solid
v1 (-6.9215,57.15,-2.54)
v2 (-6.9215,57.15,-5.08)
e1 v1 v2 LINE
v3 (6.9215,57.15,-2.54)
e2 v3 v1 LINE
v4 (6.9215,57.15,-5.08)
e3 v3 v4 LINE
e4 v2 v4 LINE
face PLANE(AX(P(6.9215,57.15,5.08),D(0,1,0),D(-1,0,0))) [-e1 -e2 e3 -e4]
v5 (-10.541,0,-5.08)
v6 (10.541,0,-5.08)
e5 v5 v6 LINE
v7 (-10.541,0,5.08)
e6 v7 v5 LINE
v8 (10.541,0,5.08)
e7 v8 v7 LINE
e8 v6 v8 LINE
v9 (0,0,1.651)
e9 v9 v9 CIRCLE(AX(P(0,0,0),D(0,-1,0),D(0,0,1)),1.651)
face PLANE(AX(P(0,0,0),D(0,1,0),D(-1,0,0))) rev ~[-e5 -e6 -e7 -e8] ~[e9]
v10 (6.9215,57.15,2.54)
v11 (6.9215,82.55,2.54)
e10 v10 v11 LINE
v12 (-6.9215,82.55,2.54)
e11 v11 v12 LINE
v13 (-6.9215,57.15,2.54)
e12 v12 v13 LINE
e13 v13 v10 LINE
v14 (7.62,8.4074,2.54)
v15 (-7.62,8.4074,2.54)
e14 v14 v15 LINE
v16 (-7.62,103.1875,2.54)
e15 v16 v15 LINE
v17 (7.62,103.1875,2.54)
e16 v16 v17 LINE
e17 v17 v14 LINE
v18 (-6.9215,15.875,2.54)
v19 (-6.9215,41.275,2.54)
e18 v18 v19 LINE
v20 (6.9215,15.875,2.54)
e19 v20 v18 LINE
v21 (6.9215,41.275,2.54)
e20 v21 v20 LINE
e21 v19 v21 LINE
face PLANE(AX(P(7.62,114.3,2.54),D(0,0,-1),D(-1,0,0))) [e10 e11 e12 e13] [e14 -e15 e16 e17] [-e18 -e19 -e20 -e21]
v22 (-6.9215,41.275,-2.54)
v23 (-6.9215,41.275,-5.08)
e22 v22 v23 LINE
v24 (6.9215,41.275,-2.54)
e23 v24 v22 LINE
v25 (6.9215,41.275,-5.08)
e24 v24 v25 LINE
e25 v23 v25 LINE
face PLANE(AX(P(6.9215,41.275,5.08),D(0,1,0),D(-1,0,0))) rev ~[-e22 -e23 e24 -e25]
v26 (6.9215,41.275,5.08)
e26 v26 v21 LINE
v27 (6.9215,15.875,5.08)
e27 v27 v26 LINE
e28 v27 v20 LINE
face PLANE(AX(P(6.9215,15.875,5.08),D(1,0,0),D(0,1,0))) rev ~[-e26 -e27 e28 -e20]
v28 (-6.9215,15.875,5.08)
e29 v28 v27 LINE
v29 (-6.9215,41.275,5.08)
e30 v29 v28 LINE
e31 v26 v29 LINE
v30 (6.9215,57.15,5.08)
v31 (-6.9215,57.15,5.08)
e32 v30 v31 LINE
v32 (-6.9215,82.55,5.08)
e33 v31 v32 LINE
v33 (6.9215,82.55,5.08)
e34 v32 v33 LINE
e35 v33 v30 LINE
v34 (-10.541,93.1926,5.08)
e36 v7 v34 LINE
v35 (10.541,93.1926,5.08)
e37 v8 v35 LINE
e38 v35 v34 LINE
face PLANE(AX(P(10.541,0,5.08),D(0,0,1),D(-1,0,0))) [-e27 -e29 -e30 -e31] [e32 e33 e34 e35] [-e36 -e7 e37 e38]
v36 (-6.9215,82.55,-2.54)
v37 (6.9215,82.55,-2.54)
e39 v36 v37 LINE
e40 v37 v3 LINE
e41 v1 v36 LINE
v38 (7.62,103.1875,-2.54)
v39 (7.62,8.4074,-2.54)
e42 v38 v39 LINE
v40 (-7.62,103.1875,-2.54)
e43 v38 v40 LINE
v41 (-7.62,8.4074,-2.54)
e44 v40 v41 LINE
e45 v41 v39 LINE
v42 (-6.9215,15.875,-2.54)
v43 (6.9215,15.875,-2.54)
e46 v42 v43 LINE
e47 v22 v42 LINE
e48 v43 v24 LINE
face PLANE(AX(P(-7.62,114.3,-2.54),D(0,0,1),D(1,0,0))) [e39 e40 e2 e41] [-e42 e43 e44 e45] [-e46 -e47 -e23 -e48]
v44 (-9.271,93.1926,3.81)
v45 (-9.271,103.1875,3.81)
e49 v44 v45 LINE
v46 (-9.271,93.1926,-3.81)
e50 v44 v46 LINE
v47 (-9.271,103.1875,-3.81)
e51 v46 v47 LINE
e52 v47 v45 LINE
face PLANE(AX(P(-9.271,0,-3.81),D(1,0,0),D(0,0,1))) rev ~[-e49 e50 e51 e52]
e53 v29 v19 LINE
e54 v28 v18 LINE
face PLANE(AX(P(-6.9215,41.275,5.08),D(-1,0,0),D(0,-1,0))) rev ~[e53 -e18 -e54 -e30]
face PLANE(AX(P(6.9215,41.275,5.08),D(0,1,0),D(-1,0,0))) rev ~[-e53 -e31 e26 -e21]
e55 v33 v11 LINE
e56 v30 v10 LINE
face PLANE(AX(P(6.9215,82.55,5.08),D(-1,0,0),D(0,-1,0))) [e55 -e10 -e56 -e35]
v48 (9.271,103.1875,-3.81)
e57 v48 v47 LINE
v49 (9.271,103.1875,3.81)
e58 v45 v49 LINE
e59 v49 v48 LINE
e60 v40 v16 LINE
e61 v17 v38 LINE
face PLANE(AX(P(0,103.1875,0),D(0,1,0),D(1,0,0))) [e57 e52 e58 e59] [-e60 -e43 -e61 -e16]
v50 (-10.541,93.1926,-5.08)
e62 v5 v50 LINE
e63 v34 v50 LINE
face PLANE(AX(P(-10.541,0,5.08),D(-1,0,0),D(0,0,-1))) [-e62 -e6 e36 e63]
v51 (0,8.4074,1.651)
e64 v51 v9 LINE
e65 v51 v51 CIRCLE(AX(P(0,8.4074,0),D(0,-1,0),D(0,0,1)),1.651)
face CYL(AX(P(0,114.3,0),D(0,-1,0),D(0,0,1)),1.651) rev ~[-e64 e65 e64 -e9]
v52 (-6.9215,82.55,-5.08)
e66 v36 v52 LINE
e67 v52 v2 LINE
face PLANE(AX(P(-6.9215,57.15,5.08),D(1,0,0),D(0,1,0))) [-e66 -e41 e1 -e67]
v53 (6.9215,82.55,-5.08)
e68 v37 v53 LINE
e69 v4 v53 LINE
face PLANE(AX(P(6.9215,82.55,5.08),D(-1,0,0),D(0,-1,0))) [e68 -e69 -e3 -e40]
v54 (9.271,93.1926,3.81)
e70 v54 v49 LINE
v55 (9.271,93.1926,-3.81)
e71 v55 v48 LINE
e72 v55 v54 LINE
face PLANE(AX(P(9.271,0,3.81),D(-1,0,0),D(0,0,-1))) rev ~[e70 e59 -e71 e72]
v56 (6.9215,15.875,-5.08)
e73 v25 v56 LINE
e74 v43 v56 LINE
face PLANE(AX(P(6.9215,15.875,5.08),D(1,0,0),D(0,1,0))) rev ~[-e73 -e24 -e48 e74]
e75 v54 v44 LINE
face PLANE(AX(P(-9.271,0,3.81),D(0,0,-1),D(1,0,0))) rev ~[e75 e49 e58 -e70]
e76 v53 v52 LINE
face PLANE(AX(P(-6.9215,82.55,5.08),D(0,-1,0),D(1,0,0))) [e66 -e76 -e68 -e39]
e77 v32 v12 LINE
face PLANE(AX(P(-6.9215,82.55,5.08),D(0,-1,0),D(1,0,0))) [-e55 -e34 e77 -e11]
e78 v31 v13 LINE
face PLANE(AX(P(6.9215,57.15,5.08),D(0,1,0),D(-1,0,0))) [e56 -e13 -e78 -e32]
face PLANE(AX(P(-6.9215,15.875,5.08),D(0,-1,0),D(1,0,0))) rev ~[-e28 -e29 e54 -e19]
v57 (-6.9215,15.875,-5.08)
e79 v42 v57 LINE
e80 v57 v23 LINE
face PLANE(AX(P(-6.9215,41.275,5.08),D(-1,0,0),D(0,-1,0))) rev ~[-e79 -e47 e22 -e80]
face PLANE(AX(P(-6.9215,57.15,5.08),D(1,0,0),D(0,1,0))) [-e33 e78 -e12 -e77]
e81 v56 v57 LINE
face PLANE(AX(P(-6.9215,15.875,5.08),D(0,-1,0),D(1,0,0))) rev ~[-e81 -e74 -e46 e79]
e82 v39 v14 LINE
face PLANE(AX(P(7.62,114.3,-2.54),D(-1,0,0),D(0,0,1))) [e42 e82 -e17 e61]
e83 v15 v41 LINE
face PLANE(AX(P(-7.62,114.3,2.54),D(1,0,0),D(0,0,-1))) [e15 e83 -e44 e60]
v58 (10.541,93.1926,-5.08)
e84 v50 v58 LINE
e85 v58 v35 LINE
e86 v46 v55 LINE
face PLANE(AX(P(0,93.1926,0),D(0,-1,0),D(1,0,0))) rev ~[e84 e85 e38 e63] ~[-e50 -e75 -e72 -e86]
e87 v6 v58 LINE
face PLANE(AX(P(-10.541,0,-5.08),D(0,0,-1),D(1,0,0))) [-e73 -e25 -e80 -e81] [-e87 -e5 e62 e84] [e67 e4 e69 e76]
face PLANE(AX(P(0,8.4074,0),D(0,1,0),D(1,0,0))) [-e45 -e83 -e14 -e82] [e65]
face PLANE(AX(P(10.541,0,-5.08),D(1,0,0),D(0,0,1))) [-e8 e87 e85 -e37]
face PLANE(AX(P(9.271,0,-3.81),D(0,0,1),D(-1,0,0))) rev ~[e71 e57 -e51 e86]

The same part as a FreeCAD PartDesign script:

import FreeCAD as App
import Part
import Sketcher
Q = App.Units.Quantity

doc = App.newDocument("Part")
body = doc.addObject("PartDesign::Body", "Body")

# Sketch on XZ plane
sketch1 = body.newObject("Sketcher::SketchObject", "Sketch")
sketch1.AttachmentSupport = (doc.getObject("XZ_Plane"), [""])
sketch1.MapMode = "FlatFace"
sketch1.addGeometry([
    Part.LineSegment(App.Vector(-9.271, -3.81, 0), App.Vector(-9.271, 3.81, 0)),
    Part.LineSegment(App.Vector(-9.271, 3.81, 0), App.Vector(9.271, 3.81, 0)),
    Part.LineSegment(App.Vector(9.271, 3.81, 0), App.Vector(9.271, -3.81, 0)),
    Part.LineSegment(App.Vector(9.271, -3.81, 0), App.Vector(-9.271, -3.81, 0)),
], False)
sketch1.addConstraint([
    Sketcher.Constraint("Coincident", 0, 2, 1, 1),
    Sketcher.Constraint("Coincident", 1, 2, 2, 1),
    Sketcher.Constraint("Coincident", 2, 2, 3, 1),
    Sketcher.Constraint("Coincident", 3, 2, 0, 1),
    Sketcher.Constraint("Vertical", 0),
    Sketcher.Constraint("Horizontal", 1),
    Sketcher.Constraint("Vertical", 2),
    Sketcher.Constraint("Horizontal", 3),
    Sketcher.Constraint("Symmetric", 0, 2, 2, 2, -1, 1),
    Sketcher.Constraint("DistanceY", 0, 1, 0, 2, Q("0.3 in")),
    Sketcher.Constraint("DistanceX", 1, 1, 1, 2, Q("0.73 in")),
])
pad1 = body.newObject("PartDesign::Pad", "Pad")
pad1.Profile = sketch1
pad1.Length = Q("4.5 in")
pad1.Reversed = True

# Sketch on XZ plane
sketch2 = body.newObject("Sketcher::SketchObject", "Sketch001")
sketch2.AttachmentSupport = (doc.getObject("XZ_Plane"), [""])
sketch2.MapMode = "FlatFace"
sketch2.addGeometry([
    Part.LineSegment(App.Vector(-10.541, 5.08, 0), App.Vector(-10.541, -5.08, 0)),
    Part.LineSegment(App.Vector(-10.541, -5.08, 0), App.Vector(10.541, -5.08, 0)),
    Part.LineSegment(App.Vector(10.541, -5.08, 0), App.Vector(10.541, 5.08, 0)),
    Part.LineSegment(App.Vector(10.541, 5.08, 0), App.Vector(-10.541, 5.08, 0)),
], False)
sketch2.addConstraint([
    Sketcher.Constraint("Coincident", 0, 2, 1, 1),
    Sketcher.Constraint("Coincident", 1, 2, 2, 1),
    Sketcher.Constraint("Coincident", 2, 2, 3, 1),
    Sketcher.Constraint("Coincident", 3, 2, 0, 1),
    Sketcher.Constraint("Vertical", 0),
    Sketcher.Constraint("Horizontal", 1),
    Sketcher.Constraint("Vertical", 2),
    Sketcher.Constraint("Horizontal", 3),
    Sketcher.Constraint("Symmetric", 0, 2, 2, 2, -1, 1),
    Sketcher.Constraint("DistanceY", 0, 2, 0, 1, Q("0.4 in")),
    Sketcher.Constraint("DistanceX", 1, 1, 1, 2, Q("0.83 in")),
])
pad2 = body.newObject("PartDesign::Pad", "Pad001")
pad2.Profile = sketch2
pad2.Length = Q("3.669 in")
pad2.Reversed = True

# Sketch on XZ plane
sketch3 = body.newObject("Sketcher::SketchObject", "Sketch002")
sketch3.AttachmentSupport = (doc.getObject("XZ_Plane"), [""])
sketch3.MapMode = "FlatFace"
sketch3.AttachmentOffset = App.Placement(App.Vector(0, 0, -4.5 * 25.4), App.Rotation())
sketch3.addGeometry(Part.Circle(App.Vector(0, 0, 0), App.Vector(0, 0, 1), 1.651), False)
sketch3.addConstraint([
    Sketcher.Constraint("Coincident", 0, 3, -1, 1),
    Sketcher.Constraint("Diameter", 0, Q("0.13 in")),
])
doc.recompute()
hole = body.newObject("PartDesign::Hole", "Hole")
hole.Profile = sketch3
hole.ThreadType = "None"
hole.Diameter = Q("0.13 in")
hole.DepthType = "ThroughAll"
hole.Reversed = True

# Sketch on XZ plane
sketch4 = body.newObject("Sketcher::SketchObject", "Sketch003")
sketch4.AttachmentSupport = (doc.getObject("XZ_Plane"), [""])
sketch4.MapMode = "FlatFace"
sketch4.AttachmentOffset = App.Placement(App.Vector(0, 0, -4.5 * 25.4), App.Rotation())
sketch4.addGeometry([
    Part.LineSegment(App.Vector(-7.62, 2.54, 0), App.Vector(7.62, 2.54, 0)),
    Part.LineSegment(App.Vector(7.62, 2.54, 0), App.Vector(7.62, -2.54, 0)),
    Part.LineSegment(App.Vector(7.62, -2.54, 0), App.Vector(-7.62, -2.54, 0)),
    Part.LineSegment(App.Vector(-7.62, -2.54, 0), App.Vector(-7.62, 2.54, 0)),
], False)
sketch4.addConstraint([
    Sketcher.Constraint("Coincident", 0, 2, 1, 1),
    Sketcher.Constraint("Coincident", 1, 2, 2, 1),
    Sketcher.Constraint("Coincident", 2, 2, 3, 1),
    Sketcher.Constraint("Coincident", 3, 2, 0, 1),
    Sketcher.Constraint("Horizontal", 0),
    Sketcher.Constraint("Vertical", 1),
    Sketcher.Constraint("Horizontal", 2),
    Sketcher.Constraint("Vertical", 3),
    Sketcher.Constraint("Symmetric", 0, 2, 2, 2, -1, 1),
    Sketcher.Constraint("DistanceX", 0, 1, 0, 2, Q("0.6 in")),
    Sketcher.Constraint("DistanceY", 1, 2, 1, 1, Q("0.2 in")),
])
pocket1 = body.newObject("PartDesign::Pocket", "Pocket")
pocket1.Profile = sketch4
pocket1.Length = Q("4.169 in")
pocket1.Reversed = True

# Sketch on XZ plane
sketch5 = body.newObject("Sketcher::SketchObject", "Sketch004")
sketch5.AttachmentSupport = (doc.getObject("XZ_Plane"), [""])
sketch5.MapMode = "FlatFace"
sketch5.AttachmentOffset = App.Placement(App.Vector(0, 0, -4.5 * 25.4), App.Rotation())
sketch5.addGeometry([
    Part.LineSegment(App.Vector(-14.2875, 6.35, 0), App.Vector(14.2875, 6.35, 0)),
    Part.LineSegment(App.Vector(14.2875, 6.35, 0), App.Vector(14.2875, -6.35, 0)),
    Part.LineSegment(App.Vector(14.2875, -6.35, 0), App.Vector(-14.2875, -6.35, 0)),
    Part.LineSegment(App.Vector(-14.2875, -6.35, 0), App.Vector(-14.2875, 6.35, 0)),
], False)
sketch5.addConstraint([
    Sketcher.Constraint("Coincident", 0, 2, 1, 1),
    Sketcher.Constraint("Coincident", 1, 2, 2, 1),
    Sketcher.Constraint("Coincident", 2, 2, 3, 1),
    Sketcher.Constraint("Coincident", 3, 2, 0, 1),
    Sketcher.Constraint("Horizontal", 0),
    Sketcher.Constraint("Vertical", 1),
    Sketcher.Constraint("Horizontal", 2),
    Sketcher.Constraint("Vertical", 3),
    Sketcher.Constraint("Symmetric", 0, 2, 2, 2, -1, 1),
    Sketcher.Constraint("DistanceY", 1, 2, 1, 1, Q("0.5 in")),
    Sketcher.Constraint("DistanceX", 0, 1, 0, 2, Q("1.125 in")),
])
pocket2 = body.newObject("PartDesign::Pocket", "Pocket001")
pocket2.Profile = sketch5
pocket2.Length = Q("0.4375 in")
pocket2.Reversed = True

# Sketch on XY plane
sketch6 = body.newObject("Sketcher::SketchObject", "Sketch005")
sketch6.AttachmentSupport = (doc.getObject("XY_Plane"), [""])
sketch6.MapMode = "FlatFace"
sketch6.AttachmentOffset = App.Placement(App.Vector(0, 0, 0.2 * 25.4), App.Rotation())
sketch6.addGeometry([
    Part.LineSegment(App.Vector(6.9215, 82.55, 0), App.Vector(-6.9215, 82.55, 0)),  # 0
    Part.LineSegment(App.Vector(-6.9215, 82.55, 0), App.Vector(-6.9215, 57.15, 0)),  # 1
    Part.LineSegment(App.Vector(-6.9215, 57.15, 0), App.Vector(6.9215, 57.15, 0)),  # 2
    Part.LineSegment(App.Vector(6.9215, 57.15, 0), App.Vector(6.9215, 82.55, 0)),  # 3
    Part.LineSegment(App.Vector(-6.9215, 41.275, 0), App.Vector(-6.9215, 15.875, 0)),  # 4
    Part.LineSegment(App.Vector(-6.9215, 15.875, 0), App.Vector(6.9215, 15.875, 0)),  # 5
    Part.LineSegment(App.Vector(6.9215, 15.875, 0), App.Vector(6.9215, 41.275, 0)),  # 6
    Part.LineSegment(App.Vector(6.9215, 41.275, 0), App.Vector(-6.9215, 41.275, 0)),  # 7
], False)
sketch6.addConstraint([
    Sketcher.Constraint("Coincident", 0, 2, 1, 1),
    Sketcher.Constraint("Coincident", 1, 2, 2, 1),
    Sketcher.Constraint("Coincident", 2, 2, 3, 1),
    Sketcher.Constraint("Coincident", 3, 2, 0, 1),
    Sketcher.Constraint("Coincident", 4, 2, 5, 1),
    Sketcher.Constraint("Coincident", 5, 2, 6, 1),
    Sketcher.Constraint("Coincident", 6, 2, 7, 1),
    Sketcher.Constraint("Coincident", 7, 2, 4, 1),
    Sketcher.Constraint("Horizontal", 0),
    Sketcher.Constraint("Vertical", 1),
    Sketcher.Constraint("Horizontal", 2),
    Sketcher.Constraint("Vertical", 3),
    Sketcher.Constraint("Vertical", 4),
    Sketcher.Constraint("Horizontal", 5),
    Sketcher.Constraint("Vertical", 6),
    Sketcher.Constraint("Horizontal", 7),
    Sketcher.Constraint("Vertical", 1, 2, 4, 2),
    Sketcher.Constraint("Vertical", 3, 2, 5, 2),
    Sketcher.Constraint("Equal", 3, 4),
    Sketcher.Constraint("DistanceY", 1, 2, 1, 1, Q("1 in")),
    Sketcher.Constraint("DistanceX", 0, 2, 0, 1, Q("0.545 in")),
    Sketcher.Constraint("DistanceY", -1, 1, 0, 2, Q("3.25 in")),
    Sketcher.Constraint("DistanceY", -1, 1, 4, 2, Q("0.625 in")),
    Sketcher.Constraint("DistanceX", 0, 2, -1, 1, Q("0.2725 in")),
])
pocket3 = body.newObject("PartDesign::Pocket", "Pocket002")
pocket3.Profile = sketch6
pocket3.Length = Q("1 in")

doc.recompute()
